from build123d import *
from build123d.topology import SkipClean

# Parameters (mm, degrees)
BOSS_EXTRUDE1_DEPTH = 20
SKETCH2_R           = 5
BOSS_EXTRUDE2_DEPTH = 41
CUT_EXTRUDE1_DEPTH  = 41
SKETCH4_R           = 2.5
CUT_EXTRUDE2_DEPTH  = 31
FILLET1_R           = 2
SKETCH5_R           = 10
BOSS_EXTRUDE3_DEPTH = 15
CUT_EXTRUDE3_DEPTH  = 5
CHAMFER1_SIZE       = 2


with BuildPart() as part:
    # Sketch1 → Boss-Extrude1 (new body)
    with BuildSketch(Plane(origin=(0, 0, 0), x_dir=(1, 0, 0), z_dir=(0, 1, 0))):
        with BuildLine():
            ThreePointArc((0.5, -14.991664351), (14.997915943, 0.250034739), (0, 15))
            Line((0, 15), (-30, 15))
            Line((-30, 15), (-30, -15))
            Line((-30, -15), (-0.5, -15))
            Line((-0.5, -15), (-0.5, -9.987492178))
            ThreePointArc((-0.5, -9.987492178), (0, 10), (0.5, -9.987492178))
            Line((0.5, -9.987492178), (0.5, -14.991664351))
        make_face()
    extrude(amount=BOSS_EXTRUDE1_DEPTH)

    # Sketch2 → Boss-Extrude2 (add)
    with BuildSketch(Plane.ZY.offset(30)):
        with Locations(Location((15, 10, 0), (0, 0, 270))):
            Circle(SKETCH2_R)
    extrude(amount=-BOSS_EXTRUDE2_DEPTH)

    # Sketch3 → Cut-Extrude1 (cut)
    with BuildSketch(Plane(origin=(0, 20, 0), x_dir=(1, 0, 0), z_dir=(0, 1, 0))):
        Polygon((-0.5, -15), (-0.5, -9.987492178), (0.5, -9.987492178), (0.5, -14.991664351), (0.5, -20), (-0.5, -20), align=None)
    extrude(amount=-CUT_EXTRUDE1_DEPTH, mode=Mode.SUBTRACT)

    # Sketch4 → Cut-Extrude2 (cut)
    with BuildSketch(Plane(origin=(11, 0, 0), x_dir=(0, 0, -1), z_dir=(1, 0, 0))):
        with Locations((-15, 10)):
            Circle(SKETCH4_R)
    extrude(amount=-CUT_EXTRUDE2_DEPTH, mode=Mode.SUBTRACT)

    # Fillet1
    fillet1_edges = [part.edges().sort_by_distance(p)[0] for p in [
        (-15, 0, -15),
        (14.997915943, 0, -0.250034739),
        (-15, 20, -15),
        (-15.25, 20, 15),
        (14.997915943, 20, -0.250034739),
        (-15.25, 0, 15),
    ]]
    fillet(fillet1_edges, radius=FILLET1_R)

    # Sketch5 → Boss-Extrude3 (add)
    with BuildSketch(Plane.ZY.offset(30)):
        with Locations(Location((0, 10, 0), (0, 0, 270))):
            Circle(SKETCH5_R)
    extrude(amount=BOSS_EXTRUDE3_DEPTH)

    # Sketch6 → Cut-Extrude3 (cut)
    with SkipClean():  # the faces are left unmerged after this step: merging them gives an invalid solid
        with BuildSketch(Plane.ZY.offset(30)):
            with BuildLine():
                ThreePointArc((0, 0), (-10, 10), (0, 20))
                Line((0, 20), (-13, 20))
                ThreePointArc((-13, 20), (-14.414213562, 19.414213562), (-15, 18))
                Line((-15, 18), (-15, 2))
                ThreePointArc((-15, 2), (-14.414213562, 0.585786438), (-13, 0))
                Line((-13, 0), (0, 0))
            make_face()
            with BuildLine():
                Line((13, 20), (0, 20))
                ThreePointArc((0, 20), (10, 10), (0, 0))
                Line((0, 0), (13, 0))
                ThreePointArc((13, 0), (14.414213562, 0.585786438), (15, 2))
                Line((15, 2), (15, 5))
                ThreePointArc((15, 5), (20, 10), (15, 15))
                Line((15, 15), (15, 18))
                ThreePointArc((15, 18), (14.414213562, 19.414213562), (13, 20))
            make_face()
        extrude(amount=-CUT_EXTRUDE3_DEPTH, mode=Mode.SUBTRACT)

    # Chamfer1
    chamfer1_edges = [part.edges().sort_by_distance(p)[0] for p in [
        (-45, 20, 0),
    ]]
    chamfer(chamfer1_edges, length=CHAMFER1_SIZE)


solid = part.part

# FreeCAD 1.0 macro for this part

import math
import FreeCAD as App
import Part
import Sketcher

V = App.Vector


def edges_at(feature, points):
    """Names of the edges that pass closest to the given points."""
    edges = feature.Shape.Edges
    near = lambda p: min(range(len(edges)), key=lambda i: edges[i].distToShape(Part.Vertex(*p))[0])
    return sorted({f"Edge{near(p) + 1}" for p in points})


def add_polygon(sketch, points):
    """Adds a closed chain of lines whose ends are joined by coincident constraints."""
    first, n = sketch.GeometryCount, len(points)
    for a, b in zip(points, points[1:] + points[:1]):
        sketch.addGeometry(Part.LineSegment(App.Vector(*a, 0), App.Vector(*b, 0)), False)
    for i in range(n):
        sketch.addConstraint(Sketcher.Constraint("Coincident", first + i, 2, first + (i + 1) % n, 1))

doc = App.newDocument("Part")
body = doc.addObject("PartDesign::Body", "Body")

sketch1 = doc.addObject("Sketcher::SketchObject", "Sketch")
body.addObject(sketch1)
sketch1.AttachmentSupport = (doc.XZ_Plane, [""])
sketch1.MapMode = "FlatFace"
sketch1.addGeometry([
    Part.ArcOfCircle(Part.Circle(V(0, 0, 0), V(0, 0, 1), 15), math.radians(-90), math.radians(88)),
    Part.LineSegment(V(0, -15, 0), V(-30, -15, 0)),
    Part.LineSegment(V(-30, -15, 0), V(-30, 15, 0)),
    Part.LineSegment(V(-30, 15, 0), V(-0.5, 15, 0)),
    Part.LineSegment(V(-0.5, 15, 0), V(-0.5, 10, 0)),
    Part.ArcOfCircle(Part.Circle(V(0, 0, 0), V(0, 0, 1), 10), math.radians(93), math.radians(447)),
    Part.LineSegment(V(0.5, 10, 0), V(0.5, 15, 0)),
], False)
sketch1.addConstraint([
    Sketcher.Constraint("Tangent", 0, 1, 1, 1),
    Sketcher.Constraint("Coincident", 1, 2, 2, 1),
    Sketcher.Constraint("Coincident", 2, 2, 3, 1),
    Sketcher.Constraint("Coincident", 3, 2, 4, 1),
    Sketcher.Constraint("Coincident", 4, 2, 5, 1),
    Sketcher.Constraint("Coincident", 5, 2, 6, 1),
    Sketcher.Constraint("Coincident", 6, 2, 0, 2),
    Sketcher.Constraint("Horizontal", 1),
    Sketcher.Constraint("Vertical", 2),
    Sketcher.Constraint("Horizontal", 3),
    Sketcher.Constraint("Vertical", 4),
    Sketcher.Constraint("Vertical", 6),
    Sketcher.Constraint("Coincident", 0, 3, -1, 1),
    Sketcher.Constraint("Coincident", 5, 3, -1, 1),
    Sketcher.Constraint("Horizontal", 4, 2, 5, 2),
    Sketcher.Constraint("Equal", 1, 2),
    Sketcher.Constraint("Radius", 0, 15.0),
    Sketcher.Constraint("Radius", 5, 10.0),
    Sketcher.Constraint("DistanceX", 1, 2, 1, 1, 30.0),
    Sketcher.Constraint("DistanceX", 3, 1, 3, 2, 29.5),
])
pad1 = doc.addObject("PartDesign::Pad", "Pad")
body.addObject(pad1)
pad1.Profile = sketch1
pad1.Length = 20
pad1.Reversed = True

sketch2 = doc.addObject("Sketcher::SketchObject", "Sketch001")
body.addObject(sketch2)
sketch2.AttachmentSupport = (doc.YZ_Plane, [""])
sketch2.MapMode = "FlatFace"
sketch2.AttachmentOffset = App.Placement(V(0, 0, -30), App.Rotation())
sketch2.addGeometry(Part.Circle(V(10, 15, 0), V(0, 0, 1), 5), False)
sketch2.addConstraint([
    Sketcher.Constraint("Diameter", 0, 10.0),
    Sketcher.Constraint("DistanceX", -1, 1, 0, 3, 10.0),
    Sketcher.Constraint("DistanceY", -1, 1, 0, 3, 15.0),
])
pad2 = doc.addObject("PartDesign::Pad", "Pad001")
body.addObject(pad2)
pad2.Profile = sketch2
pad2.Length = 41

sketch3 = doc.addObject("Sketcher::SketchObject", "Sketch002")
body.addObject(sketch3)
sketch3.AttachmentSupport = (doc.XZ_Plane, [""])
sketch3.MapMode = "FlatFace"
sketch3.AttachmentOffset = App.Placement(V(0, 0, -20), App.Rotation())
add_polygon(sketch3, [(-0.5, 10), (-0.5, 20), (0.5, 20), (0.5, 10)])
sketch3.addConstraint([
    Sketcher.Constraint("Vertical", 0),
    Sketcher.Constraint("Horizontal", 1),
    Sketcher.Constraint("Vertical", 2),
    Sketcher.Constraint("Horizontal", 3),
    Sketcher.Constraint("DistanceX", 1, 1, 1, 2, 1.0),
    Sketcher.Constraint("DistanceY", -1, 1, 0, 2, 20.0),
    Sketcher.Constraint("DistanceX", 0, 2, -1, 1, 0.5),
    Sketcher.Constraint("DistanceY", 0, 1, 0, 2, 10.012508),
])
pocket1 = doc.addObject("PartDesign::Pocket", "Pocket")
body.addObject(pocket1)
pocket1.Profile = sketch3
pocket1.Length = 41
pocket1.Reversed = True

sketch4 = doc.addObject("Sketcher::SketchObject", "Sketch003")
body.addObject(sketch4)
sketch4.AttachmentSupport = (doc.YZ_Plane, [""])
sketch4.MapMode = "FlatFace"
sketch4.AttachmentOffset = App.Placement(V(0, 0, 11), App.Rotation())
sketch4.addGeometry(Part.Circle(V(10, 15, 0), V(0, 0, 1), 2.5), False)
sketch4.addConstraint([
    Sketcher.Constraint("Diameter", 0, 5.0),
    Sketcher.Constraint("DistanceX", -1, 1, 0, 3, 10.0),
    Sketcher.Constraint("DistanceY", -1, 1, 0, 3, 15.0),
])
pocket2 = doc.addObject("PartDesign::Pocket", "Pocket001")
body.addObject(pocket2)
pocket2.Profile = sketch4
pocket2.Length = 31
doc.recompute()

fillet = doc.addObject("PartDesign::Fillet", "Fillet")
body.addObject(fillet)
fillet.Base = (pocket2, edges_at(pocket2, [
    (-15, 0, -15),
    (14.998, 0, -0.25),
    (-15, 20, -15),
    (-15.25, 20, 15),
    (14.998, 20, -0.25),
    (-15.25, 0, 15),
]))
fillet.Radius = 2

sketch5 = doc.addObject("Sketcher::SketchObject", "Sketch004")
body.addObject(sketch5)
sketch5.AttachmentSupport = (doc.YZ_Plane, [""])
sketch5.MapMode = "FlatFace"
sketch5.AttachmentOffset = App.Placement(V(0, 0, -30), App.Rotation())
sketch5.addGeometry(Part.Circle(V(10, 0, 0), V(0, 0, 1), 10), False)
sketch5.addConstraint([
    Sketcher.Constraint("PointOnObject", 0, 3, -1),
    Sketcher.Constraint("Diameter", 0, 20.0),
    Sketcher.Constraint("DistanceX", -1, 1, 0, 3, 10.0),
])
pad3 = doc.addObject("PartDesign::Pad", "Pad002")
body.addObject(pad3)
pad3.Profile = sketch5
pad3.Length = 15
pad3.Reversed = True

sketch6 = doc.addObject("Sketcher::SketchObject", "Sketch005")
body.addObject(sketch6)
sketch6.AttachmentSupport = (doc.YZ_Plane, [""])
sketch6.MapMode = "FlatFace"
sketch6.AttachmentOffset = App.Placement(V(0, 0, -30), App.Rotation())
sketch6.addGeometry([
    Part.ArcOfCircle(Part.Circle(V(10, 0, 0), V(0, 0, 1), 10), math.radians(180), math.radians(360)),
    Part.LineSegment(V(20, 0, 0), V(20, -13, 0)),
    Part.ArcOfCircle(Part.Circle(V(18, -13, 0), V(0, 0, 1), 2), math.radians(-90), math.radians(0)),
    Part.LineSegment(V(18, -15, 0), V(2, -15, 0)),
    Part.ArcOfCircle(Part.Circle(V(2, -13, 0), V(0, 0, 1), 2), math.radians(-180), math.radians(-90)),
    Part.LineSegment(V(0, -13, 0), V(0, 0, 0)),
    Part.LineSegment(V(20, 13, 0), V(20, 0, 0)),
    Part.ArcOfCircle(Part.Circle(V(10, 0, 0), V(0, 0, 1), 10), math.radians(0), math.radians(180)),
    Part.LineSegment(V(0, 0, 0), V(0, 13, 0)),
    Part.ArcOfCircle(Part.Circle(V(2, 13, 0), V(0, 0, 1), 2), math.radians(90), math.radians(180)),
    Part.LineSegment(V(2, 15, 0), V(5, 15, 0)),
    Part.ArcOfCircle(Part.Circle(V(10, 15, 0), V(0, 0, 1), 5), math.radians(0), math.radians(180)),
    Part.LineSegment(V(15, 15, 0), V(18, 15, 0)),
    Part.ArcOfCircle(Part.Circle(V(18, 13, 0), V(0, 0, 1), 2), math.radians(0), math.radians(90)),
], False)
sketch6.addConstraint([
    Sketcher.Constraint("Tangent", 0, 2, 1, 1),
    Sketcher.Constraint("Tangent", 1, 2, 2, 2),
    Sketcher.Constraint("Tangent", 2, 1, 3, 1),
    Sketcher.Constraint("Tangent", 3, 2, 4, 2),
    Sketcher.Constraint("Tangent", 4, 1, 5, 1),
    Sketcher.Constraint("Tangent", 5, 2, 0, 1),
    Sketcher.Constraint("Tangent", 6, 2, 7, 1),
    Sketcher.Constraint("Tangent", 7, 2, 8, 1),
    Sketcher.Constraint("Tangent", 8, 2, 9, 2),
    Sketcher.Constraint("Tangent", 9, 1, 10, 1),
    Sketcher.Constraint("Coincident", 10, 2, 11, 2),
    Sketcher.Constraint("Coincident", 11, 1, 12, 1),
    Sketcher.Constraint("Tangent", 12, 2, 13, 2),
    Sketcher.Constraint("Tangent", 13, 1, 6, 1),
    Sketcher.Constraint("Vertical", 1),
    Sketcher.Constraint("Horizontal", 3),
    Sketcher.Constraint("Vertical", 5),
    Sketcher.Constraint("Vertical", 6),
    Sketcher.Constraint("Vertical", 8),
    Sketcher.Constraint("Horizontal", 10),
    Sketcher.Constraint("Horizontal", 12),
    Sketcher.Constraint("Coincident", 5, 2, -1, 1),
    Sketcher.Constraint("Coincident", 7, 2, -1, 1),
    Sketcher.Constraint("Equal", 2, 4),
    Sketcher.Constraint("Equal", 0, 7),
    Sketcher.Constraint("Equal", 4, 9),
    Sketcher.Constraint("Equal", 9, 13),
    Sketcher.Constraint("Horizontal", 9, 3, 13, 3),
    Sketcher.Constraint("Horizontal", 11, 3, 9, 1),
    Sketcher.Constraint("Vertical", 7, 3, 11, 3),
    Sketcher.Constraint("Equal", 5, 6),
    Sketcher.Constraint("Radius", 0, 10.0),
    Sketcher.Constraint("Radius", 2, 2.0),
    Sketcher.Constraint("Radius", 11, 5.0),
    Sketcher.Constraint("DistanceY", 1, 2, 1, 1, 13.0),
])
pocket3 = doc.addObject("PartDesign::Pocket", "Pocket002")
body.addObject(pocket3)
pocket3.Profile = sketch6
pocket3.Length = 5
pocket3.Reversed = True
doc.recompute()

chamfer = doc.addObject("PartDesign::Chamfer", "Chamfer")
body.addObject(chamfer)
chamfer.Base = (pocket3, edges_at(pocket3, [(-45, 20, 0)]))
chamfer.Size = 2

doc.recompute()
